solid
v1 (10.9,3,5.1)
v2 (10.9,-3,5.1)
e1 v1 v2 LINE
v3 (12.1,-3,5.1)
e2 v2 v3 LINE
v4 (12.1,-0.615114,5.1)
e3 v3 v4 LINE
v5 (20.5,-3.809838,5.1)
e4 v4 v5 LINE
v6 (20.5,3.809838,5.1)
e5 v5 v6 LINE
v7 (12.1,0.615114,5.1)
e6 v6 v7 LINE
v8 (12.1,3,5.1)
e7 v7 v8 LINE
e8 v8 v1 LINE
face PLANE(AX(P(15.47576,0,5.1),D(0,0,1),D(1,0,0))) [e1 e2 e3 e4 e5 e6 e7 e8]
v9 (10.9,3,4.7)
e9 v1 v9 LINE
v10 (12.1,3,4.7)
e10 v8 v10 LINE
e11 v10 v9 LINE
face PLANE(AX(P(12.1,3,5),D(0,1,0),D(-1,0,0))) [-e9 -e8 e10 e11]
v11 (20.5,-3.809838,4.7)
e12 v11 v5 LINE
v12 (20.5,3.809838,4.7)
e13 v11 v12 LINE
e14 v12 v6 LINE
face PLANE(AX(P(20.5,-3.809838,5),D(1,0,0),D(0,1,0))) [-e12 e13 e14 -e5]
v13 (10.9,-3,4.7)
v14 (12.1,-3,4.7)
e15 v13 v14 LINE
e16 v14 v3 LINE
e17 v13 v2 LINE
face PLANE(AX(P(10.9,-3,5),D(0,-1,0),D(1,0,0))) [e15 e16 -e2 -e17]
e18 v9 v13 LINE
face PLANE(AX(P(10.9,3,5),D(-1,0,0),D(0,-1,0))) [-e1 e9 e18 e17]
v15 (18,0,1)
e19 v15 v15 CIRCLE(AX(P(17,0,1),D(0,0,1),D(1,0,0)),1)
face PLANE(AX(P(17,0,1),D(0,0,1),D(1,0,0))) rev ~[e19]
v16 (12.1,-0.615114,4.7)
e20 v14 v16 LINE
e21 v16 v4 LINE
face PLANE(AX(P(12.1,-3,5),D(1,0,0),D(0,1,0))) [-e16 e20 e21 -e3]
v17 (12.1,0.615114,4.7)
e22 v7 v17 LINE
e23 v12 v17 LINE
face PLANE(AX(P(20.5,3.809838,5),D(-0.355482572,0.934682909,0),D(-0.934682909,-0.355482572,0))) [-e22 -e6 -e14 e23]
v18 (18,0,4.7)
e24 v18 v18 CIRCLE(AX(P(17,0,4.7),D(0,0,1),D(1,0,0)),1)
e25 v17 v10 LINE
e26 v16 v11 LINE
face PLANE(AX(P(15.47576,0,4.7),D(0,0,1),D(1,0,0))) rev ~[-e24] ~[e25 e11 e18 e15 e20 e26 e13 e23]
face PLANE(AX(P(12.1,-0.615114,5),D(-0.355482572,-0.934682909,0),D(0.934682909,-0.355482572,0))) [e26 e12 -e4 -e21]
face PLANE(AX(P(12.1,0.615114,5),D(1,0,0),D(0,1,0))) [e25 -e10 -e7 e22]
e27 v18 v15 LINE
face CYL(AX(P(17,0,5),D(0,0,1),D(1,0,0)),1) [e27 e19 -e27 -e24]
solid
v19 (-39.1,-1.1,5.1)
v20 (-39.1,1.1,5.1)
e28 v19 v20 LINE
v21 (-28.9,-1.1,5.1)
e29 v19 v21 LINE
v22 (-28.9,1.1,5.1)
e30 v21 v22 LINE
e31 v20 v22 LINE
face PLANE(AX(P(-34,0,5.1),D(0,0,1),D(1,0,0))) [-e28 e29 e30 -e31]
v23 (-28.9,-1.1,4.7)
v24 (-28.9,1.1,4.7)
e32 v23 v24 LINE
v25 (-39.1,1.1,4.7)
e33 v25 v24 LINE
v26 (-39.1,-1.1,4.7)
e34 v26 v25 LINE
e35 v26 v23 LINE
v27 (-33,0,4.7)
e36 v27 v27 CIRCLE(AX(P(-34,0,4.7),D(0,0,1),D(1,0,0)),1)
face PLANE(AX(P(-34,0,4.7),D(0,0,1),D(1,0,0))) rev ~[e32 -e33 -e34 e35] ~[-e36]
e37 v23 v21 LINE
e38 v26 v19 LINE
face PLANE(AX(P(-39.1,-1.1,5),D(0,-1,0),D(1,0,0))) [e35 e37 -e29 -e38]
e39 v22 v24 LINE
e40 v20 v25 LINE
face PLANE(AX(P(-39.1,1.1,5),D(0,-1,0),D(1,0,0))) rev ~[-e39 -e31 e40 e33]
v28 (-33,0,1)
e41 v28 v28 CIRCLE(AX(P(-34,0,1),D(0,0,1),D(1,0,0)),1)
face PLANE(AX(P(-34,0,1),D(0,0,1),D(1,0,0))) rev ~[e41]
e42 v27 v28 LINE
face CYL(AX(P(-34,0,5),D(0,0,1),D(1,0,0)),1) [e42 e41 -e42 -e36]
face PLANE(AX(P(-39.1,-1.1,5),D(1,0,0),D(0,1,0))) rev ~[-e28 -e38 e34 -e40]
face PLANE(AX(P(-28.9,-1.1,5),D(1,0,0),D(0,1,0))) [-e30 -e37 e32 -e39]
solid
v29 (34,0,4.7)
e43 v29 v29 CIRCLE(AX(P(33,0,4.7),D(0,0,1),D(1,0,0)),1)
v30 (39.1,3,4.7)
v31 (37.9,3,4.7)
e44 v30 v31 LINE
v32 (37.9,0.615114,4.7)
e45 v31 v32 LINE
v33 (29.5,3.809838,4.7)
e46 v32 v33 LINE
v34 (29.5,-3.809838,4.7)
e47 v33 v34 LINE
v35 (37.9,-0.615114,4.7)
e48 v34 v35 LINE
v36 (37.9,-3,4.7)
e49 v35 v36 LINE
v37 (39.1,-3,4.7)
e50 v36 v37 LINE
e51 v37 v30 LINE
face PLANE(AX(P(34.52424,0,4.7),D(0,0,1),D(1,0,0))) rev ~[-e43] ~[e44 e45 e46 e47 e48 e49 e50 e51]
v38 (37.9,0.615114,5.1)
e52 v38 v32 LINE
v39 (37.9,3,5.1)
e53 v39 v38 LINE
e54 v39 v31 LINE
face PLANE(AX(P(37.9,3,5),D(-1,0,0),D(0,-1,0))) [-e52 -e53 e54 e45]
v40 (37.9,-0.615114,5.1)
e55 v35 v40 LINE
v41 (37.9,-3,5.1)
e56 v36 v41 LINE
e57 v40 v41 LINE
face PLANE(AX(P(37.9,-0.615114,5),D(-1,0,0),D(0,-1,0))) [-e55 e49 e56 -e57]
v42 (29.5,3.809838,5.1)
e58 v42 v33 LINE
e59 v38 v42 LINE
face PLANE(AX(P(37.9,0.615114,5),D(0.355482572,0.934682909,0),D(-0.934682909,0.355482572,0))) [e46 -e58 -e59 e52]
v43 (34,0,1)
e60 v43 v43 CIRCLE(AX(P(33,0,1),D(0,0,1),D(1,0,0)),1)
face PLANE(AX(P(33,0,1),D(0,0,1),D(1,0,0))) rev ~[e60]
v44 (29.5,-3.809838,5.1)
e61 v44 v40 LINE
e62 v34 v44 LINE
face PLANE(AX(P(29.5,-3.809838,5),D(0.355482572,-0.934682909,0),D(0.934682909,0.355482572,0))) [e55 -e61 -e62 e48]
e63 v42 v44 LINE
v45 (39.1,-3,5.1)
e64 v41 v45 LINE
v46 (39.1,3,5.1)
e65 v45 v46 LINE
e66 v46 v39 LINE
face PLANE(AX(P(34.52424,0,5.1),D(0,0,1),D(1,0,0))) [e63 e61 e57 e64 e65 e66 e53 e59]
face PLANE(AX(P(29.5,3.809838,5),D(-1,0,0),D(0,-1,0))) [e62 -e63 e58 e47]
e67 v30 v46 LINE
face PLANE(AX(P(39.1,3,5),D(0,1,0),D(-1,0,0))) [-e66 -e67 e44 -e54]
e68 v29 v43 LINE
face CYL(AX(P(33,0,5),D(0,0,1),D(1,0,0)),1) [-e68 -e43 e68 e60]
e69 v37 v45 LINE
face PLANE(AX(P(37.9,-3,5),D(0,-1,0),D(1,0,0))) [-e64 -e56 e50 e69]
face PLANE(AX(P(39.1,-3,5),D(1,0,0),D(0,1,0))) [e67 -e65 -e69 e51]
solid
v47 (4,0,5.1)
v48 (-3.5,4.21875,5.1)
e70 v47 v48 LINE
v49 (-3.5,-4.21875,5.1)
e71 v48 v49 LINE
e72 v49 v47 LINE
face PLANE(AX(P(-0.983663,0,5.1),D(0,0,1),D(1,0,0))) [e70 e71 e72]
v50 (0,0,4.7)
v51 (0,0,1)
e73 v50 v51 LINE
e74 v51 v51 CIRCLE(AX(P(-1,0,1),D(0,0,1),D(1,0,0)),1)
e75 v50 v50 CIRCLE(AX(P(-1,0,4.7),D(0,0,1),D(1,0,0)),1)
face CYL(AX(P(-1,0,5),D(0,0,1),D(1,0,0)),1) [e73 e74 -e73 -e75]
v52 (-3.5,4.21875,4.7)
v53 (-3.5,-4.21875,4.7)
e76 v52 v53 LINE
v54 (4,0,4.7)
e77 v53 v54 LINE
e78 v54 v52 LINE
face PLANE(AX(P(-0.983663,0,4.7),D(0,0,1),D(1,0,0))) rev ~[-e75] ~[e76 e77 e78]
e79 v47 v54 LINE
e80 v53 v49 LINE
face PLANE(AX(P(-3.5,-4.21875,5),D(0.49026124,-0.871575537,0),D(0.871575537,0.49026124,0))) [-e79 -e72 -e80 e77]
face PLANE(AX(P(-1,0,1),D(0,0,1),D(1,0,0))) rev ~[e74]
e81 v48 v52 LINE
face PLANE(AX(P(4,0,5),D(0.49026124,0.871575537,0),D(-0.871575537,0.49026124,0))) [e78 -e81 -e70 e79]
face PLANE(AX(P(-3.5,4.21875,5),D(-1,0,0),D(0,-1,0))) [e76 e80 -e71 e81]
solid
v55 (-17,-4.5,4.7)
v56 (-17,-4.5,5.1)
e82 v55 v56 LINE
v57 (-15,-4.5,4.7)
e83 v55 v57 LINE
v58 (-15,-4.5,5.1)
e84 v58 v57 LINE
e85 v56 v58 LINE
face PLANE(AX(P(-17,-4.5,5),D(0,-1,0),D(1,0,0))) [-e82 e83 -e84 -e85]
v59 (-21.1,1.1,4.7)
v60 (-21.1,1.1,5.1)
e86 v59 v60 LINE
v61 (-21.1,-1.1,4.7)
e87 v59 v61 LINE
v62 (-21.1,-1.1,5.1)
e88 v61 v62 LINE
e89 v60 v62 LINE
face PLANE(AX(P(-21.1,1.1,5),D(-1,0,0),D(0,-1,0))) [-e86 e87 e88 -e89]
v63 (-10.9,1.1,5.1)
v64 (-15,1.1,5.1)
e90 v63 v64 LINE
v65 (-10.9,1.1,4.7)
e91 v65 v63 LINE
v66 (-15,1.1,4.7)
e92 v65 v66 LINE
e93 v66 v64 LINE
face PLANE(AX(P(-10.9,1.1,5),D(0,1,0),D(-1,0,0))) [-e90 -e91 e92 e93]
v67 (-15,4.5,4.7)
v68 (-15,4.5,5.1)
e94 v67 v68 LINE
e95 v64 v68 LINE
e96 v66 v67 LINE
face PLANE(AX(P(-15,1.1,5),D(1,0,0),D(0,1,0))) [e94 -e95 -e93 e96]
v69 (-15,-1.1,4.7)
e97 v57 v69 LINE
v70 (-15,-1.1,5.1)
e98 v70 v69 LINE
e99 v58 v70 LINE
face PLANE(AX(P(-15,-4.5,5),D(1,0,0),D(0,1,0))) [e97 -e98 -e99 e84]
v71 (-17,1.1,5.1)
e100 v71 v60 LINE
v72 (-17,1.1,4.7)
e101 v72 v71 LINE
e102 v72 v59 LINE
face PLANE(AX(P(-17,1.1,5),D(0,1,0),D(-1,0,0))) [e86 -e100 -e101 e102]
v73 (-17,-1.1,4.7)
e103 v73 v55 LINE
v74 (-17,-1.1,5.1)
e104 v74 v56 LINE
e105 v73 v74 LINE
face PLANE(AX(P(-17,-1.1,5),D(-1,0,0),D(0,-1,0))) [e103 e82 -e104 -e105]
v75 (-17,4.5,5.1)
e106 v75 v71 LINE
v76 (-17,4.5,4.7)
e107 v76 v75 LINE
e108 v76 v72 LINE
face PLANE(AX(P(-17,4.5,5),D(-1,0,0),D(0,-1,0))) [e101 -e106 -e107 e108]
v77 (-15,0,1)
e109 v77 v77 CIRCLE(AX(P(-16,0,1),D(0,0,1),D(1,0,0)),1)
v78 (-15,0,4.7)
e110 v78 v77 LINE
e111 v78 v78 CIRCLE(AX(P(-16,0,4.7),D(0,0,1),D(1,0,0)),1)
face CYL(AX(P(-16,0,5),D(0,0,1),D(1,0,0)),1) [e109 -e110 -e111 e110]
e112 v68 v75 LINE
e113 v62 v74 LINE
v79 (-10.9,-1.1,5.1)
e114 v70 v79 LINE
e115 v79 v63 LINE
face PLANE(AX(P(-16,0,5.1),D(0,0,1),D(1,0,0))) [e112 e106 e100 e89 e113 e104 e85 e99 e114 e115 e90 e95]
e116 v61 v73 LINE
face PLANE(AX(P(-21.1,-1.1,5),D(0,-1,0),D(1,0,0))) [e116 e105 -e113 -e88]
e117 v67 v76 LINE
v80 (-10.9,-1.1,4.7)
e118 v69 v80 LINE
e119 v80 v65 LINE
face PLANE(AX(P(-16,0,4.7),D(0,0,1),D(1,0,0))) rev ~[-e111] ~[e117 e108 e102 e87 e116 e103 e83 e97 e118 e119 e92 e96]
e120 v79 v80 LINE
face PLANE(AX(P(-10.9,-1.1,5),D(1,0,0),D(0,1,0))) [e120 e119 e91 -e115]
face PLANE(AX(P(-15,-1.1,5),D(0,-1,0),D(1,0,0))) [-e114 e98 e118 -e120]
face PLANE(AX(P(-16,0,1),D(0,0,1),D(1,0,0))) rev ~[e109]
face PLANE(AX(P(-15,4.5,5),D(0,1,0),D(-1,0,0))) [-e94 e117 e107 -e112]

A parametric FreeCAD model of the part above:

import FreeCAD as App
import Part
import Sketcher
from FreeCAD import Vector


def add_polygon(sketch, points):
    """Adds a closed chain of lines whose ends are joined by coincident constraints."""
    first, n = sketch.GeometryCount, len(points)
    for a, b in zip(points, points[1:] + points[:1]):
        sketch.addGeometry(Part.LineSegment(App.Vector(*a, 0), App.Vector(*b, 0)), False)
    for i in range(n):
        sketch.addConstraint(Sketcher.Constraint("Coincident", first + i, 2, first + (i + 1) % n, 1))

doc = App.newDocument("Part")
body = doc.addObject("PartDesign::Body", "Body")

# Sketch on XY plane
sketch1 = body.newObject("Sketcher::SketchObject", "Sketch")
sketch1.AttachmentSupport = (doc.getObject("XY_Plane"), [""])
sketch1.MapMode = "FlatFace"
sketch1.AttachmentOffset = App.Placement(Vector(0, 0, 5), App.Rotation())
add_polygon(sketch1, [(-3.5, 4.21875), (-3.5, -4.21875), (4, 0)])  # lines 0-2
sketch1.addConstraint(Sketcher.Constraint("Vertical", 0))
sketch1.addConstraint(Sketcher.Constraint("PointOnObject", 1, 2, -1))
sketch1.addConstraint(Sketcher.Constraint("Equal", 1, 2))
sketch1.addConstraint(Sketcher.Constraint("DistanceX", -1, 1, 1, 2, 4.0))
sketch1.addConstraint(Sketcher.Constraint("DistanceX", 0, 2, -1, 1, 3.5))
sketch1.addConstraint(Sketcher.Constraint("DistanceY", 0, 2, 0, 1, 8.4375))
pad1 = body.newObject("PartDesign::Pad", "Pad")
pad1.Profile = sketch1
pad1.Type = "TwoLengths"
pad1.Length = 0.1
pad1.Length2 = 0.3
body2 = doc.addObject("PartDesign::Body", "Body001")

# Sketch on XY plane
sketch2 = body2.newObject("Sketcher::SketchObject", "Sketch001")
sketch2.AttachmentSupport = (doc.getObject("XY_Plane001"), [""])
sketch2.MapMode = "FlatFace"
sketch2.AttachmentOffset = App.Placement(Vector(0, 0, 5), App.Rotation())
add_polygon(sketch2, [(-10.9, -1.1), (-10.9, 1.1), (-15, 1.1), (-15, 4.5), (-17, 4.5), (-17, 1.1), (-21.1, 1.1), (-21.1, -1.1), (-17, -1.1), (-17, -4.5), (-15, -4.5), (-15, -1.1)])  # lines 0-11
sketch2.addConstraint(Sketcher.Constraint("Vertical", 0))
sketch2.addConstraint(Sketcher.Constraint("Horizontal", 1))
sketch2.addConstraint(Sketcher.Constraint("Vertical", 2))
sketch2.addConstraint(Sketcher.Constraint("Horizontal", 3))
sketch2.addConstraint(Sketcher.Constraint("Vertical", 4))
sketch2.addConstraint(Sketcher.Constraint("Horizontal", 5))
sketch2.addConstraint(Sketcher.Constraint("Vertical", 6))
sketch2.addConstraint(Sketcher.Constraint("Horizontal", 7))
sketch2.addConstraint(Sketcher.Constraint("Vertical", 8))
sketch2.addConstraint(Sketcher.Constraint("Horizontal", 9))
sketch2.addConstraint(Sketcher.Constraint("Vertical", 10))
sketch2.addConstraint(Sketcher.Constraint("Horizontal", 11))
sketch2.addConstraint(Sketcher.Constraint("Symmetric", 4, 2, 7, 2, -1))
sketch2.addConstraint(Sketcher.Constraint("Symmetric", 2, 2, 9, 2, -1))
sketch2.addConstraint(Sketcher.Constraint("Horizontal", 1, 2, 4, 2))
sketch2.addConstraint(Sketcher.Constraint("Horizontal", 7, 2, 10, 2))
sketch2.addConstraint(Sketcher.Constraint("Equal", 1, 5))
sketch2.addConstraint(Sketcher.Constraint("DistanceX", 3, 2, 3, 1, 2.0))
sketch2.addConstraint(Sketcher.Constraint("DistanceX", 1, 2, 1, 1, 4.1))
sketch2.addConstraint(Sketcher.Constraint("DistanceY", 0, 1, 0, 2, 2.2))
sketch2.addConstraint(Sketcher.Constraint("DistanceY", 2, 1, 2, 2, 3.4))
sketch2.addConstraint(Sketcher.Constraint("DistanceX", 1, 2, -1, 1, 15.0))
pad2 = body2.newObject("PartDesign::Pad", "Pad001")
pad2.Profile = sketch2
pad2.Type = "TwoLengths"
pad2.Length = 0.1
pad2.Length2 = 0.3
body3 = doc.addObject("PartDesign::Body", "Body002")

# Sketch on XY plane
sketch3 = body3.newObject("Sketcher::SketchObject", "Sketch002")
sketch3.AttachmentSupport = (doc.getObject("XY_Plane002"), [""])
sketch3.MapMode = "FlatFace"
sketch3.AttachmentOffset = App.Placement(Vector(0, 0, 5), App.Rotation())
add_polygon(sketch3, [(-39.1, 1.1), (-39.1, -1.1), (-28.9, -1.1), (-28.9, 1.1)])  # lines 0-3
sketch3.addConstraint(Sketcher.Constraint("Vertical", 0))
sketch3.addConstraint(Sketcher.Constraint("Horizontal", 1))
sketch3.addConstraint(Sketcher.Constraint("Vertical", 2))
sketch3.addConstraint(Sketcher.Constraint("Horizontal", 3))
sketch3.addConstraint(Sketcher.Constraint("DistanceX", 1, 1, 1, 2, 10.2))
sketch3.addConstraint(Sketcher.Constraint("DistanceY", 0, 2, 0, 1, 2.2))
sketch3.addConstraint(Sketcher.Constraint("DistanceX", 0, 2, -1, 1, 39.1))
sketch3.addConstraint(Sketcher.Constraint("DistanceY", 0, 2, -1, 1, 1.1))
pad3 = body3.newObject("PartDesign::Pad", "Pad002")
pad3.Profile = sketch3
pad3.Type = "TwoLengths"
pad3.Length = 0.1
pad3.Length2 = 0.3
body4 = doc.addObject("PartDesign::Body", "Body003")

# Sketch on XY plane
sketch4 = body4.newObject("Sketcher::SketchObject", "Sketch003")
sketch4.AttachmentSupport = (doc.getObject("XY_Plane003"), [""])
sketch4.MapMode = "FlatFace"
sketch4.AttachmentOffset = App.Placement(Vector(0, 0, 5), App.Rotation())
add_polygon(sketch4, [(10.9, 3), (10.9, -3), (12.1, -3), (12.1, -0.615114), (20.5, -3.809838), (20.5, 3.809838), (12.1, 0.615114), (12.1, 3)])  # lines 0-7
sketch4.addConstraint(Sketcher.Constraint("Vertical", 0))
sketch4.addConstraint(Sketcher.Constraint("Horizontal", 1))
sketch4.addConstraint(Sketcher.Constraint("Vertical", 2))
sketch4.addConstraint(Sketcher.Constraint("Vertical", 4))
sketch4.addConstraint(Sketcher.Constraint("Vertical", 6))
sketch4.addConstraint(Sketcher.Constraint("Horizontal", 7))
sketch4.addConstraint(Sketcher.Constraint("Symmetric", 2, 2, 5, 2, -1))
sketch4.addConstraint(Sketcher.Constraint("Equal", 2, 6))
sketch4.addConstraint(Sketcher.Constraint("Equal", 3, 5))
sketch4.addConstraint(Sketcher.Constraint("DistanceY", 0, 2, 0, 1, 6.0))
sketch4.addConstraint(Sketcher.Constraint("DistanceX", 1, 1, 1, 2, 1.2))
sketch4.addConstraint(Sketcher.Constraint("DistanceX", -1, 1, 0, 2, 10.9))
sketch4.addConstraint(Sketcher.Constraint("DistanceX", -1, 1, 3, 2, 20.5))
sketch4.addConstraint(Sketcher.Constraint("DistanceY", 2, 1, 2, 2, 2.384886))
sketch4.addConstraint(Sketcher.Constraint("DistanceY", 4, 1, 4, 2, 7.619676))
pad4 = body4.newObject("PartDesign::Pad", "Pad003")
pad4.Profile = sketch4
pad4.Type = "TwoLengths"
pad4.Length = 0.1
pad4.Length2 = 0.3
body5 = doc.addObject("PartDesign::Body", "Body004")

# Sketch on XY plane
sketch5 = body5.newObject("Sketcher::SketchObject", "Sketch004")
sketch5.AttachmentSupport = (doc.getObject("XY_Plane004"), [""])
sketch5.MapMode = "FlatFace"
sketch5.AttachmentOffset = App.Placement(Vector(0, 0, 5), App.Rotation())
add_polygon(sketch5, [(29.5, 3.809838), (29.5, -3.809838), (37.9, -0.615114), (37.9, -3), (39.1, -3), (39.1, 3), (37.9, 3), (37.9, 0.615114)])  # lines 0-7
sketch5.addConstraint(Sketcher.Constraint("Vertical", 0))
sketch5.addConstraint(Sketcher.Constraint("Vertical", 2))
sketch5.addConstraint(Sketcher.Constraint("Horizontal", 3))
sketch5.addConstraint(Sketcher.Constraint("Vertical", 4))
sketch5.addConstraint(Sketcher.Constraint("Horizontal", 5))
sketch5.addConstraint(Sketcher.Constraint("Vertical", 6))
sketch5.addConstraint(Sketcher.Constraint("Symmetric", 2, 2, 5, 2, -1))
sketch5.addConstraint(Sketcher.Constraint("Equal", 2, 6))
sketch5.addConstraint(Sketcher.Constraint("Equal", 1, 7))
sketch5.addConstraint(Sketcher.Constraint("DistanceY", 4, 1, 4, 2, 6.0))
sketch5.addConstraint(Sketcher.Constraint("DistanceX", 3, 1, 3, 2, 1.2))
sketch5.addConstraint(Sketcher.Constraint("DistanceX", -1, 1, 0, 2, 29.5))
sketch5.addConstraint(Sketcher.Constraint("DistanceX", -1, 1, 1, 2, 37.9))
sketch5.addConstraint(Sketcher.Constraint("DistanceY", 0, 2, 0, 1, 7.619676))
sketch5.addConstraint(Sketcher.Constraint("DistanceY", 2, 2, 2, 1, 2.384886))
pad5 = body5.newObject("PartDesign::Pad", "Pad004")
pad5.Profile = sketch5
pad5.Type = "TwoLengths"
pad5.Length = 0.1
pad5.Length2 = 0.3
body.AllowCompound = True
doc.recompute()

boolean = body.newObject("PartDesign::Boolean", "Boolean")
boolean.Type = "Fuse"
boolean.addObjects([body2])
doc.recompute()

boolean2 = body.newObject("PartDesign::Boolean", "Boolean001")
boolean2.Type = "Fuse"
boolean2.addObjects([body3])
doc.recompute()

boolean3 = body.newObject("PartDesign::Boolean", "Boolean002")
boolean3.Type = "Fuse"
boolean3.addObjects([body4])
doc.recompute()

boolean4 = body.newObject("PartDesign::Boolean", "Boolean003")
boolean4.Type = "Fuse"
boolean4.addObjects([body5])

# Sketch on XY plane
sketch6 = body.newObject("Sketcher::SketchObject", "Sketch005")
sketch6.AttachmentSupport = (doc.getObject("XY_Plane"), [""])
sketch6.MapMode = "FlatFace"
sketch6.AttachmentOffset = App.Placement(Vector(0, 0, 5), App.Rotation())
sketch6.addGeometry(Part.Circle(Vector(-1, 0, 0), Vector(0, 0, 1), 1), False)
sketch6.addGeometry(Part.Circle(Vector(-16, 0, 0), Vector(0, 0, 1), 1), False)
sketch6.addGeometry(Part.Circle(Vector(-34, 0, 0), Vector(0, 0, 1), 1), False)
sketch6.addGeometry(Part.Circle(Vector(17, 0, 0), Vector(0, 0, 1), 1), False)
sketch6.addGeometry(Part.Circle(Vector(33, 0, 0), Vector(0, 0, 1), 1), False)
sketch6.addConstraint(Sketcher.Constraint("Equal", 0, 1))
sketch6.addConstraint(Sketcher.Constraint("Equal", 1, 2))
sketch6.addConstraint(Sketcher.Constraint("Equal", 2, 3))
sketch6.addConstraint(Sketcher.Constraint("Equal", 3, 4))
sketch6.addConstraint(Sketcher.Constraint("PointOnObject", 0, 3, -1))
sketch6.addConstraint(Sketcher.Constraint("PointOnObject", 1, 3, -1))
sketch6.addConstraint(Sketcher.Constraint("PointOnObject", 2, 3, -1))
sketch6.addConstraint(Sketcher.Constraint("PointOnObject", 3, 3, -1))
sketch6.addConstraint(Sketcher.Constraint("PointOnObject", 4, 3, -1))
sketch6.addConstraint(Sketcher.Constraint("Diameter", 0, 2.0))
sketch6.addConstraint(Sketcher.Constraint("DistanceX", 0, 3, -1, 1, 1.0))
sketch6.addConstraint(Sketcher.Constraint("DistanceX", 1, 3, -1, 1, 16.0))
sketch6.addConstraint(Sketcher.Constraint("DistanceX", 2, 3, -1, 1, 34.0))
sketch6.addConstraint(Sketcher.Constraint("DistanceX", -1, 1, 3, 3, 17.0))
sketch6.addConstraint(Sketcher.Constraint("DistanceX", -1, 1, 4, 3, 33.0))
pad6 = body.newObject("PartDesign::Pad", "Pad005")
pad6.Profile = sketch6
pad6.Length = 4
pad6.Reversed = True

doc.recompute()
